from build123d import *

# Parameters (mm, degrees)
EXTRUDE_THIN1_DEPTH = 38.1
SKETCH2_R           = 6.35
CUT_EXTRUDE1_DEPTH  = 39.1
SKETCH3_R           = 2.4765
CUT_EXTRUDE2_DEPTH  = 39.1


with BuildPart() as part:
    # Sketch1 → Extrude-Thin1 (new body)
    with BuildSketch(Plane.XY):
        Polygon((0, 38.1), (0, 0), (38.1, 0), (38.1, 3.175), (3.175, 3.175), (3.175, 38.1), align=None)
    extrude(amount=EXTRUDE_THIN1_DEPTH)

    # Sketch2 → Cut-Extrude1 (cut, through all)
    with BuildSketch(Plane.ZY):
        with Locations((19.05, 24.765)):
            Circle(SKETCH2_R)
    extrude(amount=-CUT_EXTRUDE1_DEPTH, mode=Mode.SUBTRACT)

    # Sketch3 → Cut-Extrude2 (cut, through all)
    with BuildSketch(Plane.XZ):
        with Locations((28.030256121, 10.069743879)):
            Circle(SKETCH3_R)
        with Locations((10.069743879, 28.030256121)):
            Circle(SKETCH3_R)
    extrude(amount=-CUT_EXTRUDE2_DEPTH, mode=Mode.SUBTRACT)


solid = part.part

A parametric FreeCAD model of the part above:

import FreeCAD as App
import Part
import Sketcher
Q = App.Units.Quantity


def add_polygon(sketch, points):
    """Adds a closed chain of lines whose ends are joined by coincident constraints."""
    first, n = sketch.GeometryCount, len(points)
    for a, b in zip(points, points[1:] + points[:1]):
        sketch.addGeometry(Part.LineSegment(App.Vector(*a, 0), App.Vector(*b, 0)), False)
    for i in range(n):
        sketch.addConstraint(Sketcher.Constraint("Coincident", first + i, 2, first + (i + 1) % n, 1))

doc = App.newDocument("Part")
body = doc.addObject("PartDesign::Body", "Body")

# Sketch on XY plane
sketch1 = body.newObject("Sketcher::SketchObject", "Sketch")
sketch1.AttachmentSupport = (doc.getObject("XY_Plane"), [""])
sketch1.MapMode = "FlatFace"
add_polygon(sketch1, [(0, 38.1), (0, 0), (38.1, 0), (38.1, 3.2), (3.2, 3.2), (3.2, 38.1)])  # lines 0-5
sketch1.addConstraint([
    Sketcher.Constraint("Vertical", 0),
    Sketcher.Constraint("Horizontal", 1),
    Sketcher.Constraint("Vertical", 2),
    Sketcher.Constraint("Horizontal", 3),
    Sketcher.Constraint("Vertical", 4),
    Sketcher.Constraint("Horizontal", 5),
    Sketcher.Constraint("Coincident", 0, 2, -1, 1),
    Sketcher.Constraint("Equal", 1, 0),
    Sketcher.Constraint("Equal", 5, 2),
    Sketcher.Constraint("DistanceX", 1, 1, 1, 2, Q("1.5 in")),
    Sketcher.Constraint("DistanceX", 3, 2, 3, 1, Q("1.375 in")),
])
pad1 = body.newObject("PartDesign::Pad", "Pad")
pad1.Profile = sketch1
pad1.Length = Q("1.5 in")

# Sketch on YZ plane
sketch2 = body.newObject("Sketcher::SketchObject", "Sketch001")
sketch2.AttachmentSupport = (doc.getObject("YZ_Plane"), [""])
sketch2.MapMode = "FlatFace"
sketch2.addGeometry(Part.Circle(App.Vector(25, 19, 0), App.Vector(0, 0, 1), 6), False)
sketch2.addConstraint([
    Sketcher.Constraint("Diameter", 0, Q("0.5 in")),
    Sketcher.Constraint("DistanceY", -1, 1, 0, 3, Q("0.75 in")),
    Sketcher.Constraint("DistanceX", -1, 1, 0, 3, Q("0.975 in")),
])
pocket1 = body.newObject("PartDesign::Pocket", "Pocket")
pocket1.Profile = sketch2
pocket1.Type = "ThroughAll"
pocket1.Reversed = True

# Sketch on XZ plane
sketch3 = body.newObject("Sketcher::SketchObject", "Sketch002")
sketch3.AttachmentSupport = (doc.getObject("XZ_Plane"), [""])
sketch3.MapMode = "FlatFace"
sketch3.addGeometry([
    Part.Circle(App.Vector(28, 10.1, 0), App.Vector(0, 0, 1), 2.5),
    Part.Circle(App.Vector(10.1, 28, 0), App.Vector(0, 0, 1), 2.5),
], False)
sketch3.addConstraint([
    Sketcher.Constraint("Equal", 0, 1),
    Sketcher.Constraint("Diameter", 0, Q("0.195 in")),
    Sketcher.Constraint("DistanceX", -1, 1, 0, 3, Q("28.030256 mm")),
    Sketcher.Constraint("DistanceY", -1, 1, 0, 3, Q("10.069744 mm")),
    Sketcher.Constraint("DistanceX", -1, 1, 1, 3, Q("10.069744 mm")),
    Sketcher.Constraint("DistanceY", -1, 1, 1, 3, Q("28.030256 mm")),
])
pocket2 = body.newObject("PartDesign::Pocket", "Pocket001")
pocket2.Profile = sketch3
pocket2.Type = "ThroughAll"

doc.recompute()
